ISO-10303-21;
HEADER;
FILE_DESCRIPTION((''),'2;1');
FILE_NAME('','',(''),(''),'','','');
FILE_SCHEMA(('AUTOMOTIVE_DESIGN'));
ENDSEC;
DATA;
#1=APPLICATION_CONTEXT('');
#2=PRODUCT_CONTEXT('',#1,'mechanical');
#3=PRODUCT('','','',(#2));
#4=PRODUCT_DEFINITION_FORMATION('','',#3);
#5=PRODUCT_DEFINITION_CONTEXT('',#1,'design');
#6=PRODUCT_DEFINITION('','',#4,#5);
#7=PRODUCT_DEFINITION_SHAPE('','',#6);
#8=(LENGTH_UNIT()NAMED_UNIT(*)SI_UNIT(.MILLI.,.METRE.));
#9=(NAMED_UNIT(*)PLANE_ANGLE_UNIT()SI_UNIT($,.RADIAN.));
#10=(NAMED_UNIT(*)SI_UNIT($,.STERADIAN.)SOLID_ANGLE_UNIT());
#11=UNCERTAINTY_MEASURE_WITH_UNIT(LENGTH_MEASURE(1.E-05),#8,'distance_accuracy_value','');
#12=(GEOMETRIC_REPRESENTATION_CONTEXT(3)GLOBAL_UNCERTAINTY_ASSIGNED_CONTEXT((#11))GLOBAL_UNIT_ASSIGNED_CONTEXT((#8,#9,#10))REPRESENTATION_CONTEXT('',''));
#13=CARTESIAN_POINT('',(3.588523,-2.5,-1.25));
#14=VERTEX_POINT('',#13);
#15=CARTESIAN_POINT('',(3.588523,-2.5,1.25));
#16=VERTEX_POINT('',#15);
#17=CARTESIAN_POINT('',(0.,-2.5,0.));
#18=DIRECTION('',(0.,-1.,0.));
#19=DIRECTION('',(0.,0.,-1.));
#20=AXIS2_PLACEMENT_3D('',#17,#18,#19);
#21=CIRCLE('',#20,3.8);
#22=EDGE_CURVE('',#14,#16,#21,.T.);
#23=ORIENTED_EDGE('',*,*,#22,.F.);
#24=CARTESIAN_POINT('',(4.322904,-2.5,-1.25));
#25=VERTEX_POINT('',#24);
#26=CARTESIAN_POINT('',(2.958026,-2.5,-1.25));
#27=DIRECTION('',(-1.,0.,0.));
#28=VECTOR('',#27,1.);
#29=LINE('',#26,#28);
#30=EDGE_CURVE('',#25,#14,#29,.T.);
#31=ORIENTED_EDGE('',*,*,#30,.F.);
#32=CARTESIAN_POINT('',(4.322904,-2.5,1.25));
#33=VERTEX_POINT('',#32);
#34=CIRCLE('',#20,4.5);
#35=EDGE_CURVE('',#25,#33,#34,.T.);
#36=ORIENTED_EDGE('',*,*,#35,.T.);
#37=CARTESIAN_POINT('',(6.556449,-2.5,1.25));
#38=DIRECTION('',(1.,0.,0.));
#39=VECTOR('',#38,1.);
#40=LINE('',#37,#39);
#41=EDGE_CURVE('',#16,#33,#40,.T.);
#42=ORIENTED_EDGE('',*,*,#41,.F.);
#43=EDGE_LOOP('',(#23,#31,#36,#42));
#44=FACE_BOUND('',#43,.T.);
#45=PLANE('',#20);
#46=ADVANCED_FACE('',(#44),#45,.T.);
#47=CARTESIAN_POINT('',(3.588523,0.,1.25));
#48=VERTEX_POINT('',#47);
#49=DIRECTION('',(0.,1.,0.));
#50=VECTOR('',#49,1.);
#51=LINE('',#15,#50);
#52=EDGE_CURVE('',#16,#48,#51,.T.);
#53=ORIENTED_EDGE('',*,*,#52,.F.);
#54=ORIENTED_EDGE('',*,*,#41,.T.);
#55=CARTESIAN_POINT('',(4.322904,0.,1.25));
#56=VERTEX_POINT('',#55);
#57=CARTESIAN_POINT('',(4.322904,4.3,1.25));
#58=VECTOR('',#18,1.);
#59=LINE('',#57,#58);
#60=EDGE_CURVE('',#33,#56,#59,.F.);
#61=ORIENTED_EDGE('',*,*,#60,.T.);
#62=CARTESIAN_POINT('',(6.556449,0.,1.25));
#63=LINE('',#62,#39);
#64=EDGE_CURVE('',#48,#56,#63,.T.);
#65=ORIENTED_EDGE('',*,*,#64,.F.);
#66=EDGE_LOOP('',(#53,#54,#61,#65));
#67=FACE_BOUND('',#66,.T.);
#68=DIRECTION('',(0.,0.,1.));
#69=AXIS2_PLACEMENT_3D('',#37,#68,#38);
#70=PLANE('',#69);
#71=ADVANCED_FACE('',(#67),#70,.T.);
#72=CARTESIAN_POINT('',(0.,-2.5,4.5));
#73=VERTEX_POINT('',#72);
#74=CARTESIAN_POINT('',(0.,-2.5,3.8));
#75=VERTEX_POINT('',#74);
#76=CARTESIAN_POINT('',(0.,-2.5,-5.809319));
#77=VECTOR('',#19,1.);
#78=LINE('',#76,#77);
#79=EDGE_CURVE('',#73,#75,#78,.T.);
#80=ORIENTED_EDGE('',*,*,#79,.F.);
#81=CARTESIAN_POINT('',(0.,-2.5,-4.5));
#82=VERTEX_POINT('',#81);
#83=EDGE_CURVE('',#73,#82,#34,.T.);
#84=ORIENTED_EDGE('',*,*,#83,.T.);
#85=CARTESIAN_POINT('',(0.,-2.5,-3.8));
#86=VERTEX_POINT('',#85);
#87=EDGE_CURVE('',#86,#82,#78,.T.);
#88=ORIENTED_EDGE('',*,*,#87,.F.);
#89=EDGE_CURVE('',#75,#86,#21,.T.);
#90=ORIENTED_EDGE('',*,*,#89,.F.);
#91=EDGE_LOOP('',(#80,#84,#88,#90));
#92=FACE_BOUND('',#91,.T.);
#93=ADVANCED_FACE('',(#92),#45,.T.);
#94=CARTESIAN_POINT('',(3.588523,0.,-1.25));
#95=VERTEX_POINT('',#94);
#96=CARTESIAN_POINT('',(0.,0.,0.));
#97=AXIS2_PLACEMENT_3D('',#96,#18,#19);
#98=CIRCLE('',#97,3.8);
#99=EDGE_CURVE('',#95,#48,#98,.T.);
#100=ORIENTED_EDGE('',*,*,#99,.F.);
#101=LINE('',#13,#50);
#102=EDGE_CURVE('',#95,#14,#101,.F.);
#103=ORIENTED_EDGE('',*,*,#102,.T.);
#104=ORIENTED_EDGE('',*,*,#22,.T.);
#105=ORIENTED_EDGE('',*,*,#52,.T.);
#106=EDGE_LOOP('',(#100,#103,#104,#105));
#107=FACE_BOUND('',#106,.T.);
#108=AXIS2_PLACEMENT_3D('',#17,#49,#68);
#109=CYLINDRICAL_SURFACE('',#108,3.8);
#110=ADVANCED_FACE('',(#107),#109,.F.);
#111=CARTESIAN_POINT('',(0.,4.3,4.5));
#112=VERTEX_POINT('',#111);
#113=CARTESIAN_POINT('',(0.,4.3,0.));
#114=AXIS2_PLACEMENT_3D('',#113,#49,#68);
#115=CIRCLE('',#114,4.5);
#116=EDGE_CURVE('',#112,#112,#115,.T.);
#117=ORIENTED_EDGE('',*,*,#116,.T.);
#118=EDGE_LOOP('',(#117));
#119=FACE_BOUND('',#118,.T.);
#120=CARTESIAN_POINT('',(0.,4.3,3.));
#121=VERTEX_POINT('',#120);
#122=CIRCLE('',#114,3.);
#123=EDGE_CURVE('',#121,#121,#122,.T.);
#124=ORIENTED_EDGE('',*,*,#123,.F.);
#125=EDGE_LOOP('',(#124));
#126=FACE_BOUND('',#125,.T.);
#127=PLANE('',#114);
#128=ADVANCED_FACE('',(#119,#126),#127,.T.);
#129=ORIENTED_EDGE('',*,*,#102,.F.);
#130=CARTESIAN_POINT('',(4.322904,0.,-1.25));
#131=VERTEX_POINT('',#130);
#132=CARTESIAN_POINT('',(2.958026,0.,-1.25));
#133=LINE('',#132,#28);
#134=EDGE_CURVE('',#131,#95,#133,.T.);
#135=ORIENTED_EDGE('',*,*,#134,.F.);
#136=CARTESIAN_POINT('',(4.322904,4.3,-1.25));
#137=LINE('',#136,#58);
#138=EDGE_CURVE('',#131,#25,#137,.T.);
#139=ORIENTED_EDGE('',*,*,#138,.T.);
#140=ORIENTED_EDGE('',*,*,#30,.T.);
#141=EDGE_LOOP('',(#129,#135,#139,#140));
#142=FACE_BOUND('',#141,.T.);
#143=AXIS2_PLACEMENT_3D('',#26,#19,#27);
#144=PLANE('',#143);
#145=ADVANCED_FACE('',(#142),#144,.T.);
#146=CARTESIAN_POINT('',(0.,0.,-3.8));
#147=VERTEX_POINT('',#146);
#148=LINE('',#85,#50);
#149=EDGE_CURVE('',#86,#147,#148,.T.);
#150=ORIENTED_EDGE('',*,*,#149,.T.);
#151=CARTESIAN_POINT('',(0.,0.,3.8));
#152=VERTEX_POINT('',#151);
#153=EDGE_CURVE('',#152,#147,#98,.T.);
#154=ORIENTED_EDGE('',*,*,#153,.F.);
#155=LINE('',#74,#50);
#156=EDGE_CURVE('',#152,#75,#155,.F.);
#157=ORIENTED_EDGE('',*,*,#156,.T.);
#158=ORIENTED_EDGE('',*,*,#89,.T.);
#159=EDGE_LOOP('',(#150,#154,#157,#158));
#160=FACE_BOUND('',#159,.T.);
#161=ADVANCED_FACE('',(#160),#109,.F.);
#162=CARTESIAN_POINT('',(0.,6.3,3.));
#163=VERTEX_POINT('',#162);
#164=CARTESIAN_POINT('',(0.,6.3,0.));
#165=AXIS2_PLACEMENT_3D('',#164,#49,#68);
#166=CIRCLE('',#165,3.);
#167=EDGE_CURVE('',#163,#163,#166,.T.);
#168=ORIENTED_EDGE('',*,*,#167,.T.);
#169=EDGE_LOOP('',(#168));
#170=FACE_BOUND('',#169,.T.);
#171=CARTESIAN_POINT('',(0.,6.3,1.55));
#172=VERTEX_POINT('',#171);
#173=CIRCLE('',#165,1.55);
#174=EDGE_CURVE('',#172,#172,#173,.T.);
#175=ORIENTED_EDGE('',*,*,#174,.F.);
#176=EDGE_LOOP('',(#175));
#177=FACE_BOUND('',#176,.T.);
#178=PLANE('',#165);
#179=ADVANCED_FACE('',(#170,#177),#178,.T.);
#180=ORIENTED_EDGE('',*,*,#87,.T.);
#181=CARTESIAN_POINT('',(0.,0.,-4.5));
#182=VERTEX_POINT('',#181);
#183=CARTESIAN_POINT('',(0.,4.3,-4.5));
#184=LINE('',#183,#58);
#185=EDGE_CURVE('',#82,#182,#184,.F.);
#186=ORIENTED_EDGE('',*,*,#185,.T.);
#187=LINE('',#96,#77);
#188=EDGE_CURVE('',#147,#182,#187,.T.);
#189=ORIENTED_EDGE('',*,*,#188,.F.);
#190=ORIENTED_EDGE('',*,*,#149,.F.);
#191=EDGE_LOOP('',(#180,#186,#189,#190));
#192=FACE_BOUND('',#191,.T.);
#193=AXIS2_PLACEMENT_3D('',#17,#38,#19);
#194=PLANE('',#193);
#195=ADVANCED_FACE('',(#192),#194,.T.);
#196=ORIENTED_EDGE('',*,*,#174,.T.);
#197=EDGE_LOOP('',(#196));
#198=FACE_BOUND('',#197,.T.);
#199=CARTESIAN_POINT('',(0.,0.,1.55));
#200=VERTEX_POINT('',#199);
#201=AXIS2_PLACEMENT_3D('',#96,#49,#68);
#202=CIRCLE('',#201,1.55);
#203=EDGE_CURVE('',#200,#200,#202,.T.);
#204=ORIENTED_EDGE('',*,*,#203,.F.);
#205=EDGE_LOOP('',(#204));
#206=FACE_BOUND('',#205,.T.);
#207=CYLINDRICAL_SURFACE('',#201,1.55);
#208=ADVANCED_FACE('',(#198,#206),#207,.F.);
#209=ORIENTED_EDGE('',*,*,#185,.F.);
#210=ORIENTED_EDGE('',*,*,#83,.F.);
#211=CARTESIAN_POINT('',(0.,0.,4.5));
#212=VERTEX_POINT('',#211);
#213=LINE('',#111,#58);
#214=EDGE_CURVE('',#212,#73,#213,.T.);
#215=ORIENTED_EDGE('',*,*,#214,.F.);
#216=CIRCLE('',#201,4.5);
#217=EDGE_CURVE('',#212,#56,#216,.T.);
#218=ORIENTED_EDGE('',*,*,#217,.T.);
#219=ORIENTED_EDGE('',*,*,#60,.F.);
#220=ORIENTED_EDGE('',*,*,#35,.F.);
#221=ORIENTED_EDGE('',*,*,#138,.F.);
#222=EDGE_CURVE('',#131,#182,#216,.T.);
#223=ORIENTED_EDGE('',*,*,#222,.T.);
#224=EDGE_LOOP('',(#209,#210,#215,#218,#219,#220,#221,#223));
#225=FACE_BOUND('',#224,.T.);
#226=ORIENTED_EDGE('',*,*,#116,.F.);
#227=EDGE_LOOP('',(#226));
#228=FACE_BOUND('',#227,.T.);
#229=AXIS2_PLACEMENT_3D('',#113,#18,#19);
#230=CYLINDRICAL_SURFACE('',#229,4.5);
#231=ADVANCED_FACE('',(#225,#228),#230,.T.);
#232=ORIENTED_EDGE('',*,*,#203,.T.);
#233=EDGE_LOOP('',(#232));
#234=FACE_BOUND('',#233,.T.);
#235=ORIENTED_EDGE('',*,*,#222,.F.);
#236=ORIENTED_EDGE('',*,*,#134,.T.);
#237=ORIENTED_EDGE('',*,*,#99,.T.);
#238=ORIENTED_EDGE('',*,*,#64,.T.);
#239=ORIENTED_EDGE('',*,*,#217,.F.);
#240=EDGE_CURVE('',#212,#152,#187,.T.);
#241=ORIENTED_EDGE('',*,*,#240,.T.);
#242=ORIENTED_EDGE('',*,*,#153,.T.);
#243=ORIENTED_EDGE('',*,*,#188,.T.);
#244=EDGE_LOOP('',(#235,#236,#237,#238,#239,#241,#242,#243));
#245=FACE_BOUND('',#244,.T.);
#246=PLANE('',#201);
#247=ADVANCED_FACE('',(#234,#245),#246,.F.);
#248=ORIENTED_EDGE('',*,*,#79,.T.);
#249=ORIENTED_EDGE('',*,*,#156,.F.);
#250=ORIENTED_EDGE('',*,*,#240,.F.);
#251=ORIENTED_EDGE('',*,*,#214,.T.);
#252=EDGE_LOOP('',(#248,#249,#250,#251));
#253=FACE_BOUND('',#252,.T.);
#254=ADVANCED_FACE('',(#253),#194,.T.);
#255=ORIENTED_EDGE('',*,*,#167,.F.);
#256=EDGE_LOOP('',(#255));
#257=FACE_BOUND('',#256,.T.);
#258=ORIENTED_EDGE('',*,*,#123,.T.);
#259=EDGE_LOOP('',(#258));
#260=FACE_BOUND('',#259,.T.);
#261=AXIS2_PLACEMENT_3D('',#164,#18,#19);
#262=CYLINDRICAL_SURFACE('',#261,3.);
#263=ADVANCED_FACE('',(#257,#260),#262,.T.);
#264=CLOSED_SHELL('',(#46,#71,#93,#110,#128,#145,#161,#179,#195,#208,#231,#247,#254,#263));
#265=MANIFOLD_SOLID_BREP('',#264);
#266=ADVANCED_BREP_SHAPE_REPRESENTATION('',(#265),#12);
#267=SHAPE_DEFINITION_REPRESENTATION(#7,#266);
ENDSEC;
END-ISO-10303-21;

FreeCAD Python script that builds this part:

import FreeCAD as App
import Part
import Sketcher

V = App.Vector

doc = App.newDocument("Part")
body = doc.addObject("PartDesign::Body", "Body")

# Sketch on XZ plane
sketch1 = body.newObject("Sketcher::SketchObject", "Sketch")
sketch1.AttachmentSupport = (doc.getObject("XZ_Plane"), [""])
sketch1.MapMode = "FlatFace"
sketch1.addGeometry(Part.Circle(V(0, 0, 0), V(0, 0, 1), 4.5), False)
sketch1.addConstraint([
    Sketcher.Constraint("Coincident", 0, 3, -1, 1),
    Sketcher.Constraint("Diameter", 0, 9.0),
])
pad1 = body.newObject("PartDesign::Pad", "Pad")
pad1.Profile = sketch1
pad1.Length = 4.3
pad1.Reversed = True

# Sketch on XZ plane
sketch2 = body.newObject("Sketcher::SketchObject", "Sketch001")
sketch2.AttachmentSupport = (doc.getObject("XZ_Plane"), [""])
sketch2.MapMode = "FlatFace"
sketch2.AttachmentOffset = App.Placement(V(0, 0, -4.3), App.Rotation())
sketch2.addGeometry(Part.Circle(V(0, 0, 0), V(0, 0, 1), 3), False)
sketch2.addConstraint([
    Sketcher.Constraint("Coincident", 0, 3, -1, 1),
    Sketcher.Constraint("Diameter", 0, 6.0),
])
pad2 = body.newObject("PartDesign::Pad", "Pad001")
pad2.Profile = sketch2
pad2.Length = 2
pad2.Reversed = True

# Sketch on XZ plane
sketch3 = body.newObject("Sketcher::SketchObject", "Sketch002")
sketch3.AttachmentSupport = (doc.getObject("XZ_Plane"), [""])
sketch3.MapMode = "FlatFace"
sketch3.AttachmentOffset = App.Placement(V(0, 0, -6.3), App.Rotation())
sketch3.addGeometry(Part.Circle(V(0, 0, 0), V(0, 0, 1), 1.55), False)
sketch3.addConstraint([
    Sketcher.Constraint("Coincident", 0, 3, -1, 1),
    Sketcher.Constraint("Diameter", 0, 3.1),
])
pocket1 = body.newObject("PartDesign::Pocket", "Pocket")
pocket1.Profile = sketch3
pocket1.Type = "ThroughAll"
pocket1.Reversed = True

# Sketch on XZ plane
sketch4 = body.newObject("Sketcher::SketchObject", "Sketch003")
sketch4.AttachmentSupport = (doc.getObject("XZ_Plane"), [""])
sketch4.MapMode = "FlatFace"
sketch4.AttachmentOffset = App.Placement(V(0, 0, 2.5), App.Rotation())
sketch4.addGeometry([
    Part.Circle(V(0, 0, 0), V(0, 0, 1), 4.5),
    Part.Circle(V(0, 0, 0), V(0, 0, 1), 3.8),
], False)
sketch4.addConstraint([
    Sketcher.Constraint("Coincident", 0, 3, -1, 1),
    Sketcher.Constraint("Coincident", 1, 3, -1, 1),
    Sketcher.Constraint("Diameter", 0, 9.0),
    Sketcher.Constraint("Diameter", 1, 7.6),
])
pad3 = body.newObject("PartDesign::Pad", "Pad002")
pad3.Profile = sketch4
pad3.Length = 2.5
pad3.Reversed = True

# Sketch on XZ plane
sketch5 = body.newObject("Sketcher::SketchObject", "Sketch004")
sketch5.AttachmentSupport = (doc.getObject("XZ_Plane"), [""])
sketch5.MapMode = "FlatFace"
sketch5.addGeometry([
    Part.LineSegment(V(0, 5.809319, 0), V(0, -5.809319, 0)),  # 0
    Part.LineSegment(V(0, -5.809319, 0), V(6.556449, -5.809319, 0)),  # 1
    Part.LineSegment(V(6.556449, -5.809319, 0), V(6.556449, -1.25, 0)),  # 2
    Part.LineSegment(V(6.556449, -1.25, 0), V(2.958026, -1.25, 0)),  # 3
    Part.LineSegment(V(2.958026, -1.25, 0), V(2.958026, 1.25, 0)),  # 4
    Part.LineSegment(V(2.958026, 1.25, 0), V(6.556449, 1.25, 0)),  # 5
    Part.LineSegment(V(6.556449, 1.25, 0), V(6.556449, 5.809319, 0)),  # 6
    Part.LineSegment(V(6.556449, 5.809319, 0), V(0, 5.809319, 0)),  # 7
], False)
sketch5.addConstraint([
    Sketcher.Constraint("Coincident", 0, 2, 1, 1),
    Sketcher.Constraint("Coincident", 1, 2, 2, 1),
    Sketcher.Constraint("Coincident", 2, 2, 3, 1),
    Sketcher.Constraint("Coincident", 3, 2, 4, 1),
    Sketcher.Constraint("Coincident", 4, 2, 5, 1),
    Sketcher.Constraint("Coincident", 5, 2, 6, 1),
    Sketcher.Constraint("Coincident", 6, 2, 7, 1),
    Sketcher.Constraint("Coincident", 7, 2, 0, 1),
    Sketcher.Constraint("Vertical", 0),
    Sketcher.Constraint("Horizontal", 1),
    Sketcher.Constraint("Vertical", 2),
    Sketcher.Constraint("Horizontal", 3),
    Sketcher.Constraint("Vertical", 4),
    Sketcher.Constraint("Horizontal", 5),
    Sketcher.Constraint("Vertical", 6),
    Sketcher.Constraint("Horizontal", 7),
    Sketcher.Constraint("Symmetric", 0, 2, 7, 2, -1, 1),
    Sketcher.Constraint("Symmetric", 2, 2, 5, 2, -1),
    Sketcher.Constraint("DistanceY", 4, 1, 4, 2, 2.5),
    Sketcher.Constraint("DistanceX", 1, 1, 1, 2, 6.556449),
    Sketcher.Constraint("DistanceY", 2, 1, 2, 2, 4.559319),
    Sketcher.Constraint("DistanceX", 3, 2, 3, 1, 3.598423),
])
pocket2 = body.newObject("PartDesign::Pocket", "Pocket001")
pocket2.Profile = sketch5
pocket2.Type = "ThroughAll"
pocket2.Reversed = True

doc.recompute()
